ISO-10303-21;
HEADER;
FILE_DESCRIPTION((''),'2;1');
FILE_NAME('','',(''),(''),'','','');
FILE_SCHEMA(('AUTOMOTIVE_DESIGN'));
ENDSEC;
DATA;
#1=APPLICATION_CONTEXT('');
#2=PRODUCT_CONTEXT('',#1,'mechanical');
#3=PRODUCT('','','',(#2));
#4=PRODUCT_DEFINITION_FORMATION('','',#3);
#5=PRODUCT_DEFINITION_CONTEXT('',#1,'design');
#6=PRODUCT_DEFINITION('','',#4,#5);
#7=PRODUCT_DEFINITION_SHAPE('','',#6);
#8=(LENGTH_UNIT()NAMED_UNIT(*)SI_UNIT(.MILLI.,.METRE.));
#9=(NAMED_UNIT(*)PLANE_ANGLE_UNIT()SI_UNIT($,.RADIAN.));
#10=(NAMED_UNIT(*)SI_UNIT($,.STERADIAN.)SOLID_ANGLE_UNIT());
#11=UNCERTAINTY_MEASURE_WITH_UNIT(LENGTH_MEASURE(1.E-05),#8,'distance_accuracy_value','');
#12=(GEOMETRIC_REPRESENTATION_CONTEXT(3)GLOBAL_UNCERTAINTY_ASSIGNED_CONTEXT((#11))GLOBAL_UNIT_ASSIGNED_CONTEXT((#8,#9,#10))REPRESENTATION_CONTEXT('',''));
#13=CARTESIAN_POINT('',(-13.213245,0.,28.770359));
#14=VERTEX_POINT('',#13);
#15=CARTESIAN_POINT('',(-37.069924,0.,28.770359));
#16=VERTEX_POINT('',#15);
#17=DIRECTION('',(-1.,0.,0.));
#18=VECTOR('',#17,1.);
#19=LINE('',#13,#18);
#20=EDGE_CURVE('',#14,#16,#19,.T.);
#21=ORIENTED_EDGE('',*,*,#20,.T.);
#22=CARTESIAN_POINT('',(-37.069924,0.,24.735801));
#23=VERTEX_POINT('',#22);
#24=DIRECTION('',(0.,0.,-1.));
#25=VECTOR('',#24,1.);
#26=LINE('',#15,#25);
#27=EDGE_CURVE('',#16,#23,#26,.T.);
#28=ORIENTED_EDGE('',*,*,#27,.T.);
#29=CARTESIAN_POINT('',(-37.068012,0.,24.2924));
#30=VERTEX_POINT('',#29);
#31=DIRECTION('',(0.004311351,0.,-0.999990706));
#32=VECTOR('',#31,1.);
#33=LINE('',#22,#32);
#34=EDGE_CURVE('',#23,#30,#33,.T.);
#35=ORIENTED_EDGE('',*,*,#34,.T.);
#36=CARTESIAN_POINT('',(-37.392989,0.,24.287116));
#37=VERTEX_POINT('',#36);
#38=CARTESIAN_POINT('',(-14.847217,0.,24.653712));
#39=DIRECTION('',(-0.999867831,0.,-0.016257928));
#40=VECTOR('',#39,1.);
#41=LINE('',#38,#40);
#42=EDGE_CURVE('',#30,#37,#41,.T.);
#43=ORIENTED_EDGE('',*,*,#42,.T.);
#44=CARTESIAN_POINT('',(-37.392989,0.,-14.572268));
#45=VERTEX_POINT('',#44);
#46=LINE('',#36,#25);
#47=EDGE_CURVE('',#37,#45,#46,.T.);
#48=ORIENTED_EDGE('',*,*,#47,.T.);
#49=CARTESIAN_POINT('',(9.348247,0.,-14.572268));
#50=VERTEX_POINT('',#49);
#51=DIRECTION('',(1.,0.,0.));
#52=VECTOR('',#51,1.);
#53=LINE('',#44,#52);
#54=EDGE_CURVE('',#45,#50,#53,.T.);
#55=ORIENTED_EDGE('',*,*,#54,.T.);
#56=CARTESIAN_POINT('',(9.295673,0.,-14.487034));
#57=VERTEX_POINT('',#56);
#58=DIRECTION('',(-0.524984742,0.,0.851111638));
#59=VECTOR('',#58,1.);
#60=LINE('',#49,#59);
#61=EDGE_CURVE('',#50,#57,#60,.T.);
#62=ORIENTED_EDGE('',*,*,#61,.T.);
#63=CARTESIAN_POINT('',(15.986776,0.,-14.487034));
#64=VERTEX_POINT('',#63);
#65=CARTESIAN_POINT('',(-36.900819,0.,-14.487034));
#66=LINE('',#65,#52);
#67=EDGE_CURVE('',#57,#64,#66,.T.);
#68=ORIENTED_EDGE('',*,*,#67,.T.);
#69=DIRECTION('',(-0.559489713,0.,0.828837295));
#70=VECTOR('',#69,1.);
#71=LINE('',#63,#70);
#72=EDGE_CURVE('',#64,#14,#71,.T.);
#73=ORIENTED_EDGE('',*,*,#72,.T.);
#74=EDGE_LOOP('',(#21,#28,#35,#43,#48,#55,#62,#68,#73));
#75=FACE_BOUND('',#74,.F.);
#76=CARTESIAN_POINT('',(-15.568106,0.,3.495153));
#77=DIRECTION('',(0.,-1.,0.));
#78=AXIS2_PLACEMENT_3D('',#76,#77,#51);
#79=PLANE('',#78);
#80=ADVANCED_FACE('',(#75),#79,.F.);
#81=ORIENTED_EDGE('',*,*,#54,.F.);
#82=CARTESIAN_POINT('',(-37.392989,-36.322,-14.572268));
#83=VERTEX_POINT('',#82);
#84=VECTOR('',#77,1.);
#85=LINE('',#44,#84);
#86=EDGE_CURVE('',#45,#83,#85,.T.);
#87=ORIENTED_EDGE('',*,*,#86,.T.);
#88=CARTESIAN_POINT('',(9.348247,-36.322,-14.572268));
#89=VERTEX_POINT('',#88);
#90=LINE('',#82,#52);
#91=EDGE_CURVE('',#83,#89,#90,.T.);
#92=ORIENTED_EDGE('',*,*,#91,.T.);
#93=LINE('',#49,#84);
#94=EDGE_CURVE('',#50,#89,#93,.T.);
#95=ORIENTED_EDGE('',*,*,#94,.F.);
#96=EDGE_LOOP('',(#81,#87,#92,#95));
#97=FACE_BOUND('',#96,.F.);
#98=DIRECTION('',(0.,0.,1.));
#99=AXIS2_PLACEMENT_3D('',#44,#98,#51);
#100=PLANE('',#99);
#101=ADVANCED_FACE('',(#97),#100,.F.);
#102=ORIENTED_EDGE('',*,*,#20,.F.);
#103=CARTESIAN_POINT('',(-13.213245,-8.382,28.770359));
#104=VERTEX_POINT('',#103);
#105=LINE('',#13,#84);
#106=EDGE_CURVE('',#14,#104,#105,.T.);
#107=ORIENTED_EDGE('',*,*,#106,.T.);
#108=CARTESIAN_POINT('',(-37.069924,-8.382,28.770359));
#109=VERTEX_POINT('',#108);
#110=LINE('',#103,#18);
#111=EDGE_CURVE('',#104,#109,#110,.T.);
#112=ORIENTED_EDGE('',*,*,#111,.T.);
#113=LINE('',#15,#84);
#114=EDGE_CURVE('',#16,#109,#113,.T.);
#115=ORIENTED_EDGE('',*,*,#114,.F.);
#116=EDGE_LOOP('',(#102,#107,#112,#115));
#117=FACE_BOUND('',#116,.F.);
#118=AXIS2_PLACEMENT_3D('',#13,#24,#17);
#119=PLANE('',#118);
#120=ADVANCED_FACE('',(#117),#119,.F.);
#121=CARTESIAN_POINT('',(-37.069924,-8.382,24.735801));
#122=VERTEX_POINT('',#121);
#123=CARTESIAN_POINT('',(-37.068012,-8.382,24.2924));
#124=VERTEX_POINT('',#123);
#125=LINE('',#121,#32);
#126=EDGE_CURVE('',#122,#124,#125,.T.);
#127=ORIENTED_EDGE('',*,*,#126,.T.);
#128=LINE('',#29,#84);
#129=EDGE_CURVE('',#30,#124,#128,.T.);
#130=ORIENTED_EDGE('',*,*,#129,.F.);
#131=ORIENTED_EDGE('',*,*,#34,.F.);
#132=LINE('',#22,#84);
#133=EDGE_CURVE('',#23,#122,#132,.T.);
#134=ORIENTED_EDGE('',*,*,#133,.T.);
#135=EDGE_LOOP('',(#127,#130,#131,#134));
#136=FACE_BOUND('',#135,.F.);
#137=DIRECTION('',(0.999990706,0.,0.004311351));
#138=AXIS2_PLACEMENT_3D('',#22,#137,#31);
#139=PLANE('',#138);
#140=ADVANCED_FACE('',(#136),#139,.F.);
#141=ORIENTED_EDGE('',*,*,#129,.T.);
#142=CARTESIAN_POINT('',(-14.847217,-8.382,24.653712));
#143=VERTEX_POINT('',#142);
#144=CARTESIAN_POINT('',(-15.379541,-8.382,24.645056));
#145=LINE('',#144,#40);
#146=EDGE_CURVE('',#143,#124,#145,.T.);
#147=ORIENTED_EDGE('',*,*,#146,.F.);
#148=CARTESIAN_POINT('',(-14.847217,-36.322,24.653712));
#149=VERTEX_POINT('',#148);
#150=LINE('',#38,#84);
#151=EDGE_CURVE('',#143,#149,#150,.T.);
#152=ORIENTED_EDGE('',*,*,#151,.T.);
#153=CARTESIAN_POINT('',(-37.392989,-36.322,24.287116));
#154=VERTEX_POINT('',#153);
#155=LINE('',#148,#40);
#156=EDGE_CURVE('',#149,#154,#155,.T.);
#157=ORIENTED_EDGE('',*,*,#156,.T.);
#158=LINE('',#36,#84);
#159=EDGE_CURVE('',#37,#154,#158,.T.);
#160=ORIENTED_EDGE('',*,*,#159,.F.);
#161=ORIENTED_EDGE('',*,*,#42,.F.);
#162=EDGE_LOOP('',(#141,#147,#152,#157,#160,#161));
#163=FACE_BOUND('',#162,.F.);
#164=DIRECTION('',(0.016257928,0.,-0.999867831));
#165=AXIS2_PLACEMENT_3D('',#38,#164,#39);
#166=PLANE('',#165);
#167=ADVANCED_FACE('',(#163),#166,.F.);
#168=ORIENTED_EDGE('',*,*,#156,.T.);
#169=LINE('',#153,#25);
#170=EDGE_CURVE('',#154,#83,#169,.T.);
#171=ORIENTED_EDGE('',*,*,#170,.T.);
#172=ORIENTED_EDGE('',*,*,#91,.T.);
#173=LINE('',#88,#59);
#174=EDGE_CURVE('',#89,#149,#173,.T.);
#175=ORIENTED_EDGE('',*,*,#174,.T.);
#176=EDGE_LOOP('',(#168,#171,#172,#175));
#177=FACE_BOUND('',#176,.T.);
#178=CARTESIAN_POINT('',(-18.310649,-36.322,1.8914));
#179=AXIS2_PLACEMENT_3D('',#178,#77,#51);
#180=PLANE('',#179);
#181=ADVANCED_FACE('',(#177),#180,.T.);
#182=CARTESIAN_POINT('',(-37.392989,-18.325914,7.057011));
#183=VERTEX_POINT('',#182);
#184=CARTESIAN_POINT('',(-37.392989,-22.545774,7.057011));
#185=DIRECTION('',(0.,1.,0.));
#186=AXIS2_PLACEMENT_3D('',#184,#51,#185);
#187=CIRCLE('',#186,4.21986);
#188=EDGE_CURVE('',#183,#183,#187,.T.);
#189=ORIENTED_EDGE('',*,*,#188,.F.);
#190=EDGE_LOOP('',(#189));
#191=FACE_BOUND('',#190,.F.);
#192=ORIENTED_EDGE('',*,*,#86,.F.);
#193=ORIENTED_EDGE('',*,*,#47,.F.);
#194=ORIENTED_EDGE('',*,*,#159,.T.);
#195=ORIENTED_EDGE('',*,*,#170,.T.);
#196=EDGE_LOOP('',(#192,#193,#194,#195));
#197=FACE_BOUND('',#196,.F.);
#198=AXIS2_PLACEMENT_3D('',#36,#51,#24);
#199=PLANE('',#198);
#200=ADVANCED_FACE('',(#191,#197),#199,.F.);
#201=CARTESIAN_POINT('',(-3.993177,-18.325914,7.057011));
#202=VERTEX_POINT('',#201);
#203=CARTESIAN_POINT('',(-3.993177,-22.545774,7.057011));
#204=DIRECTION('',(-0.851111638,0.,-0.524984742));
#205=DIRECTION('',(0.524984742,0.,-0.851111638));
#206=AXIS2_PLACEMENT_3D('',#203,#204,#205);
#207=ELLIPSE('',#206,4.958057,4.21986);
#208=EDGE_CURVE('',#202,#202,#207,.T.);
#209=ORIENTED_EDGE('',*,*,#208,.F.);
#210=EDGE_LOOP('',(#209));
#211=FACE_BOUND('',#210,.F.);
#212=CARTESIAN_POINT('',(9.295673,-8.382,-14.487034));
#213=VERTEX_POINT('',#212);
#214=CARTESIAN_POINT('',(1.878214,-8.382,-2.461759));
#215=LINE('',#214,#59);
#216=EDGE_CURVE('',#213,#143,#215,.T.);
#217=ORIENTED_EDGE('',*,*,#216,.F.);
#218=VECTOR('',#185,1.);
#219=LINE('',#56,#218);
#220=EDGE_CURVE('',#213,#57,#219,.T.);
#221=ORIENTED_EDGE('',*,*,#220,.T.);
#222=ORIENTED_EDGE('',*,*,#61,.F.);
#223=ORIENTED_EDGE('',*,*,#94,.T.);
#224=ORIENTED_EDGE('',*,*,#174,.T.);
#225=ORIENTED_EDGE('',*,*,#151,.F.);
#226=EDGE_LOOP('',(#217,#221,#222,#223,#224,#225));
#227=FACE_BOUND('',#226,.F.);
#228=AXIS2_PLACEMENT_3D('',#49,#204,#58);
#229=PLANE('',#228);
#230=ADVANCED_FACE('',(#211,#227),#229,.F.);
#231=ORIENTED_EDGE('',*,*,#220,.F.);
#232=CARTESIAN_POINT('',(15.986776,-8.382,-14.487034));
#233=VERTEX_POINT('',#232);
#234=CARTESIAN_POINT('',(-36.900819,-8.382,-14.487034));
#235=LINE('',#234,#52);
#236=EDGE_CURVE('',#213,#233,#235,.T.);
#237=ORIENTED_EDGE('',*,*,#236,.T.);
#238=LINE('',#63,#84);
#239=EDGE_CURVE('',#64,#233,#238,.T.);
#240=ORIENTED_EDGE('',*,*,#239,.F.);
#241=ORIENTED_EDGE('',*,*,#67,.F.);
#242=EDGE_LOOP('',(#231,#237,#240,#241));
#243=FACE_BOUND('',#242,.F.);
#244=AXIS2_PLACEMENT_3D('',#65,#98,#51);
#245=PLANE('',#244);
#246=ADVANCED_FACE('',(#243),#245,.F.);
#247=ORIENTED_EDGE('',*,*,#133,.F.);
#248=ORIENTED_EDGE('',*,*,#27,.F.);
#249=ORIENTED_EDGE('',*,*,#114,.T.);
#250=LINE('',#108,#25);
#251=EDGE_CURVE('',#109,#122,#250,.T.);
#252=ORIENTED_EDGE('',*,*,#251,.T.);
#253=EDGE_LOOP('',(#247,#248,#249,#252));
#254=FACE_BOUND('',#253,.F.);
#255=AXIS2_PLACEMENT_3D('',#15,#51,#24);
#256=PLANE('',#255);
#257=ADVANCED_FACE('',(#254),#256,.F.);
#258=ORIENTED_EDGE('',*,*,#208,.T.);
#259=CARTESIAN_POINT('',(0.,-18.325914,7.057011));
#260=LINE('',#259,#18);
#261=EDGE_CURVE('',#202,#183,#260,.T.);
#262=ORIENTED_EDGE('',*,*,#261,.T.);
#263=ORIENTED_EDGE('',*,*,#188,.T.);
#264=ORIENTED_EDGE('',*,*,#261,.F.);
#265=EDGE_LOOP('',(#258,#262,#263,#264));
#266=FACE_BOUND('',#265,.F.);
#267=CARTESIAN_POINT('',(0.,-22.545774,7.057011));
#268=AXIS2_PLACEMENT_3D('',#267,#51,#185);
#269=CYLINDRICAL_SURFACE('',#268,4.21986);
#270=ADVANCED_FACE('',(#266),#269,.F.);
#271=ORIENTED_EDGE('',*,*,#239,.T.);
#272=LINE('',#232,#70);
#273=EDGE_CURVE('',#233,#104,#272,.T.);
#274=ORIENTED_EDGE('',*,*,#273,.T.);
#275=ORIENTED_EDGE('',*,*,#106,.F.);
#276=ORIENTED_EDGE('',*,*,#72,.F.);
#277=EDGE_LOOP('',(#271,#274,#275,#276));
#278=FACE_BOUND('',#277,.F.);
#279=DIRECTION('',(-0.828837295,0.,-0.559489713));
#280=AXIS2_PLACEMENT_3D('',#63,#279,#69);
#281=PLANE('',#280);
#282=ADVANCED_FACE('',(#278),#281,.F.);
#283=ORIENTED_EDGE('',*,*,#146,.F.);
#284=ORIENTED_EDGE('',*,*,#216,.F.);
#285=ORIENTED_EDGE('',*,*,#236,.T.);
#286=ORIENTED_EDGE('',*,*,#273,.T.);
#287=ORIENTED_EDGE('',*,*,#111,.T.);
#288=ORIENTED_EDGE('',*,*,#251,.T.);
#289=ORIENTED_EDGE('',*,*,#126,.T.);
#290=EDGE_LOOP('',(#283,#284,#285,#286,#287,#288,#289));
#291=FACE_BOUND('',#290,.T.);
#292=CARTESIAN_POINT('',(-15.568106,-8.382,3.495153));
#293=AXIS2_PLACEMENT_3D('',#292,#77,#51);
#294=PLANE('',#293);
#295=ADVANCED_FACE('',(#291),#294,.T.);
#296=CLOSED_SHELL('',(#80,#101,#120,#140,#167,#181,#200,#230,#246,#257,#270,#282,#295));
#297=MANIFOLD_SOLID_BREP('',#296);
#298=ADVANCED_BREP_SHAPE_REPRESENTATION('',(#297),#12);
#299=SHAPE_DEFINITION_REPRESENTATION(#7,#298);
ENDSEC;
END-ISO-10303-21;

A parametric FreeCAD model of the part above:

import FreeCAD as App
import Part
import Sketcher
Q = App.Units.Quantity


def add_polygon(sketch, points):
    """Adds a closed chain of lines whose ends are joined by coincident constraints."""
    first, n = sketch.GeometryCount, len(points)
    for a, b in zip(points, points[1:] + points[:1]):
        sketch.addGeometry(Part.LineSegment(App.Vector(*a, 0), App.Vector(*b, 0)), False)
    for i in range(n):
        sketch.addConstraint(Sketcher.Constraint("Coincident", first + i, 2, first + (i + 1) % n, 1))

doc = App.newDocument("Part")
body = doc.addObject("PartDesign::Body", "Body")

sketch1 = body.newObject("Sketcher::SketchObject", "Sketch")
sketch1.AttachmentSupport = (doc.getObject("XZ_Plane"), [""])
sketch1.MapMode = "FlatFace"
add_polygon(sketch1, [(-15, 25), (-37, 24), (-37, -15), (9, -15)])
sketch1.addConstraint([
    Sketcher.Constraint("Vertical", 1),
    Sketcher.Constraint("Horizontal", 2),
    Sketcher.Constraint("DistanceX", 2, 1, 2, 2, Q("46.741236 mm")),
    Sketcher.Constraint("DistanceY", 1, 2, 1, 1, Q("38.859384 mm")),
    Sketcher.Constraint("DistanceX", 0, 2, -1, 1, Q("37.392989 mm")),
    Sketcher.Constraint("DistanceY", -1, 1, 3, 2, Q("24.653712 mm")),
    Sketcher.Constraint("DistanceX", 0, 2, 3, 2, Q("22.545772 mm")),
    Sketcher.Constraint("DistanceY", 1, 2, 3, 2, Q("39.22598 mm")),
])
pad1 = body.newObject("PartDesign::Pad", "Pad")
pad1.Profile = sketch1
pad1.Length = Q("1.43 in")

sketch2 = body.newObject("Sketcher::SketchObject", "Sketch001")
sketch2.AttachmentSupport = (doc.getObject("XZ_Plane"), [""])
sketch2.MapMode = "FlatFace"
add_polygon(sketch2, [(-37.1, 28.8), (-37.1, 24.7), (-36.9, -14.5), (16, -14.5), (-13.2, 28.8)])
sketch2.addConstraint([
    Sketcher.Constraint("Vertical", 0),
    Sketcher.Constraint("Horizontal", 2),
    Sketcher.Constraint("Horizontal", 4),
    Sketcher.Constraint("Distance", 1, Q("39.2232 mm")),
    Sketcher.Constraint("DistanceX", 4, 2, 4, 1, Q("23.856679 mm")),
    Sketcher.Constraint("DistanceY", 0, 2, 0, 1, Q("4.034558 mm")),
    Sketcher.Constraint("DistanceY", -1, 1, 0, 2, Q("24.735801 mm")),
    Sketcher.Constraint("DistanceX", 0, 2, 2, 2, Q("53.0567 mm")),
    Sketcher.Constraint("DistanceX", 2, 1, 2, 2, Q("52.887595 mm")),
    Sketcher.Constraint("DistanceX", 1, 2, -1, 1, Q("36.900819 mm")),
])
pad2 = body.newObject("PartDesign::Pad", "Pad001")
pad2.Profile = sketch2
pad2.Length = Q("0.33 in")

sketch3 = body.newObject("Sketcher::SketchObject", "Sketch002")
sketch3.AttachmentSupport = (doc.getObject("YZ_Plane"), [""])
sketch3.MapMode = "FlatFace"
sketch3.addGeometry(Part.Circle(App.Vector(-22.5, 7.1, 0), App.Vector(0, 0, 1), 4.2), False)
sketch3.addConstraint([
    Sketcher.Constraint("Diameter", 0, Q("8.43972 mm")),
    Sketcher.Constraint("DistanceY", -1, 1, 0, 3, Q("7.057011 mm")),
    Sketcher.Constraint("DistanceX", 0, 3, -1, 1, Q("22.545774 mm")),
])
pocket1 = body.newObject("PartDesign::Pocket", "Pocket")
pocket1.Profile = sketch3
pocket1.Length = Q("1.84 in")

doc.recompute()
